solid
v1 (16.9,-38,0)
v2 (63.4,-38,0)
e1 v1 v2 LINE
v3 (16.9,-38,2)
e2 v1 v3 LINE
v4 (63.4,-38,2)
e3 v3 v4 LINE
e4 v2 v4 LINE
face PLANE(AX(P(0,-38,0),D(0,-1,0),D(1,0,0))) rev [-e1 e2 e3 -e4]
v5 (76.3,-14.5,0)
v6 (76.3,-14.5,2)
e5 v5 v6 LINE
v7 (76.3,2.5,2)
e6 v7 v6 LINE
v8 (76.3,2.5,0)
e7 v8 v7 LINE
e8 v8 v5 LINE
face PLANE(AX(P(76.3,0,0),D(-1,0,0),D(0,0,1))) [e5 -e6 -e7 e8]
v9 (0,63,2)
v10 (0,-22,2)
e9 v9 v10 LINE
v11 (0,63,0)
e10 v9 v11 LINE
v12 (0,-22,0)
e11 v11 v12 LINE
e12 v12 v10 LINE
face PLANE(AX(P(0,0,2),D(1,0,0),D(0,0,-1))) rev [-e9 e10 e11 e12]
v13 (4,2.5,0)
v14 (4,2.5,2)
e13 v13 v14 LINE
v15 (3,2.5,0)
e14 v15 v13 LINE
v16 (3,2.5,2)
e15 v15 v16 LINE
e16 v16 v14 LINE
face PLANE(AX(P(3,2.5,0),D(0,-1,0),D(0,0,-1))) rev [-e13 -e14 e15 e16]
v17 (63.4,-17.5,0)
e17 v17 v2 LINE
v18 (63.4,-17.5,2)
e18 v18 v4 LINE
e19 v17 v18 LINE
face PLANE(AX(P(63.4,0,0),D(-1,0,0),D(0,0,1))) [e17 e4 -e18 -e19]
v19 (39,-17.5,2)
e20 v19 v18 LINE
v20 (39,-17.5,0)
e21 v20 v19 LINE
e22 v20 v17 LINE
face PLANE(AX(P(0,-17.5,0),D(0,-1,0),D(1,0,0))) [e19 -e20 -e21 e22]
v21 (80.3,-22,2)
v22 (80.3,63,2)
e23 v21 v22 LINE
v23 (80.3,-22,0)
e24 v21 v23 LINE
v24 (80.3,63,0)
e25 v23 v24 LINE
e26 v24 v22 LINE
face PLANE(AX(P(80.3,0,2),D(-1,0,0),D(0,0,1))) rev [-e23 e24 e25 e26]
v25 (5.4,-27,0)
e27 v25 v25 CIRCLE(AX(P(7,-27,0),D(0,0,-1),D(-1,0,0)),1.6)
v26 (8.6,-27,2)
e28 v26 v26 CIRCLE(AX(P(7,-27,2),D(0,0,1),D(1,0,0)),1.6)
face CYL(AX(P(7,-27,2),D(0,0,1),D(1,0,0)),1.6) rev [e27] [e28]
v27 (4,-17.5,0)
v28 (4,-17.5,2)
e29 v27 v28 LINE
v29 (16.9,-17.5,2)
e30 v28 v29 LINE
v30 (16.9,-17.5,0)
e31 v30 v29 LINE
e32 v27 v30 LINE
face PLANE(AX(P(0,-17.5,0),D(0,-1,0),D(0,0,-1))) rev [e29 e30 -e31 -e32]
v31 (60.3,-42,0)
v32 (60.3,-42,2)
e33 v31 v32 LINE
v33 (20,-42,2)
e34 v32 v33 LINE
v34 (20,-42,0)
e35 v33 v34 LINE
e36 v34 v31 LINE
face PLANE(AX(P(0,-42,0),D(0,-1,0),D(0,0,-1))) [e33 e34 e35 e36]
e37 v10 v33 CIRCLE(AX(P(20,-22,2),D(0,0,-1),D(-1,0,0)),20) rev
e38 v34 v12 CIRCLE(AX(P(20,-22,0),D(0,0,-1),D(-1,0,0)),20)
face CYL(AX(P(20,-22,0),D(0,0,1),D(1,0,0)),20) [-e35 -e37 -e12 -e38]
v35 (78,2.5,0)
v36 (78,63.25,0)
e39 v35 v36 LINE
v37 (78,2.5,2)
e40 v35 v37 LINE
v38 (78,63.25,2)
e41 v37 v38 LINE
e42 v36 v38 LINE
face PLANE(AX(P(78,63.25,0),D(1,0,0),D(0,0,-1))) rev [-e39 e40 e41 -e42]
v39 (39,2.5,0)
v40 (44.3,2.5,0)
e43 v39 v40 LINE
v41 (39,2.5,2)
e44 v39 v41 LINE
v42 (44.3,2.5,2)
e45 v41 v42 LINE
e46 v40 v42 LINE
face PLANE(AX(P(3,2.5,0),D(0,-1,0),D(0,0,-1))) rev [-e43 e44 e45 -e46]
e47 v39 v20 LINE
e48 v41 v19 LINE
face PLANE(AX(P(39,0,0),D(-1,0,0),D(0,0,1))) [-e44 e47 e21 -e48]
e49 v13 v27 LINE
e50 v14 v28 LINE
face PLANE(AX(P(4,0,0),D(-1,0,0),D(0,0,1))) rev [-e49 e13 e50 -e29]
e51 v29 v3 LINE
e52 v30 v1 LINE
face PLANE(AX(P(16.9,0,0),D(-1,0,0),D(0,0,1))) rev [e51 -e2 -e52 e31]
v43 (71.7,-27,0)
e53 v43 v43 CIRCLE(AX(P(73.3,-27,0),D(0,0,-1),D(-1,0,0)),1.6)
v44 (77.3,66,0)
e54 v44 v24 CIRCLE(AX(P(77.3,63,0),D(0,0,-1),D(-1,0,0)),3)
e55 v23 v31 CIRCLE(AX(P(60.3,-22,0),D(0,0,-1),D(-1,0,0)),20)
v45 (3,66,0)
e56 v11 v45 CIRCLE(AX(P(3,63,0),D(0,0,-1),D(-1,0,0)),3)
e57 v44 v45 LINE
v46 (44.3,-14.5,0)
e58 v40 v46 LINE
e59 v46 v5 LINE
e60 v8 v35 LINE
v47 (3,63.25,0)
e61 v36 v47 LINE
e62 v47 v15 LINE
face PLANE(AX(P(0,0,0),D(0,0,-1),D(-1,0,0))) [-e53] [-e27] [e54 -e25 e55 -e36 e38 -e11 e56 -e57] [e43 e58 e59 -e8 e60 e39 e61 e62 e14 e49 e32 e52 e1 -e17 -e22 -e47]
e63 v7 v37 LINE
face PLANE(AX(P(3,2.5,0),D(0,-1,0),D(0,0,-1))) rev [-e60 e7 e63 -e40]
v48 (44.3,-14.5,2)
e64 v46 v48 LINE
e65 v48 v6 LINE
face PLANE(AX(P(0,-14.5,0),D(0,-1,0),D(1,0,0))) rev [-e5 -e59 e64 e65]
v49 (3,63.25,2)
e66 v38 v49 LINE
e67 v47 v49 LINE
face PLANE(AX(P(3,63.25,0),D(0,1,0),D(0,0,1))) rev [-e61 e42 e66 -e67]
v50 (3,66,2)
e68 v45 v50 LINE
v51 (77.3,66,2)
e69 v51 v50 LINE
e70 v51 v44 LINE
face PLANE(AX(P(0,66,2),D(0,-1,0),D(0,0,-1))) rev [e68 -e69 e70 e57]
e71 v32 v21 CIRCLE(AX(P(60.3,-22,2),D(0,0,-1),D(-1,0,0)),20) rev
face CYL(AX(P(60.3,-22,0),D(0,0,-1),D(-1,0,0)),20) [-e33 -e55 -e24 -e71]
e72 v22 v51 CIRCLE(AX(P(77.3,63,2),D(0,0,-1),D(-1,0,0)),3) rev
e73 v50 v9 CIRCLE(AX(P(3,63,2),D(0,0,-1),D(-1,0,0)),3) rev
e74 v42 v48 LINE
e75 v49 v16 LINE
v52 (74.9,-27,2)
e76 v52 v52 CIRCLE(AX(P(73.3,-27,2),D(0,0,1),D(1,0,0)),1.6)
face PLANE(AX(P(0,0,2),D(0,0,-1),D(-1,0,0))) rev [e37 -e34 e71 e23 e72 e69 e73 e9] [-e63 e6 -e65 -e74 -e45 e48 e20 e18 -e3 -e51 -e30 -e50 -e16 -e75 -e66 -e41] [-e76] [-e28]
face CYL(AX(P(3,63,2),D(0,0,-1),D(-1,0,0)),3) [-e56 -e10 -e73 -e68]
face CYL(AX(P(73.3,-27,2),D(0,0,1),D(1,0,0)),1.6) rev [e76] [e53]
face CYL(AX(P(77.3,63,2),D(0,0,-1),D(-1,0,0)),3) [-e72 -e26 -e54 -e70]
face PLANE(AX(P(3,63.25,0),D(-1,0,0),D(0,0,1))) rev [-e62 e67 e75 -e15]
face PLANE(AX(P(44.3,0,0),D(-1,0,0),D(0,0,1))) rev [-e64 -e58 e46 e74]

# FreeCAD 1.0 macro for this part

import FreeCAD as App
import Part
import Sketcher
Q = App.Units.Quantity


def edges_at(feature, points):
    """Names of the edges that pass closest to the given points."""
    edges = feature.Shape.Edges
    near = lambda p: min(range(len(edges)), key=lambda i: edges[i].distToShape(Part.Vertex(*p))[0])
    return sorted({f"Edge{near(p) + 1}" for p in points})


def add_polygon(sketch, points):
    """Adds a closed chain of lines whose ends are joined by coincident constraints."""
    first, n = sketch.GeometryCount, len(points)
    for a, b in zip(points, points[1:] + points[:1]):
        sketch.addGeometry(Part.LineSegment(App.Vector(*a, 0), App.Vector(*b, 0)), False)
    for i in range(n):
        sketch.addConstraint(Sketcher.Constraint("Coincident", first + i, 2, first + (i + 1) % n, 1))

doc = App.newDocument("Part")
body = doc.addObject("PartDesign::Body", "Body")

# Sketch on XY plane
sketch1 = doc.addObject("Sketcher::SketchObject", "Sketch")
body.addObject(sketch1)
sketch1.AttachmentSupport = (doc.XY_Plane, [""])
sketch1.MapMode = "FlatFace"
add_polygon(sketch1, [(0, 66), (0, 0), (80, 0), (80, 66)])  # lines 0-3
sketch1.addConstraint(Sketcher.Constraint("Vertical", 0))
sketch1.addConstraint(Sketcher.Constraint("Horizontal", 1))
sketch1.addConstraint(Sketcher.Constraint("Vertical", 2))
sketch1.addConstraint(Sketcher.Constraint("Horizontal", 3))
sketch1.addConstraint(Sketcher.Constraint("Coincident", 0, 2, -1, 1))
sketch1.addConstraint(Sketcher.Constraint("DistanceY", 0, 2, 0, 1, Q("66 mm")))
sketch1.addConstraint(Sketcher.Constraint("DistanceX", 1, 1, 1, 2, Q("80.3 mm")))
pad1 = doc.addObject("PartDesign::Pad", "Pad")
body.addObject(pad1)
pad1.Profile = sketch1
pad1.Length = 2

# Sketch on XY plane
sketch2 = doc.addObject("Sketcher::SketchObject", "Sketch001")
body.addObject(sketch2)
sketch2.AttachmentSupport = (doc.XY_Plane, [""])
sketch2.MapMode = "FlatFace"
sketch2.AttachmentOffset = App.Placement(App.Vector(0, 0, 2), App.Rotation())
sketch2.addGeometry(Part.Circle(App.Vector(7, 59, 0), App.Vector(0, 0, 1), 1.6), False)
sketch2.addGeometry(Part.Circle(App.Vector(73.3, 59, 0), App.Vector(0, 0, 1), 1.6), False)
sketch2.addGeometry(Part.Circle(App.Vector(73.3, 7, 0), App.Vector(0, 0, 1), 1.6), False)
sketch2.addGeometry(Part.Circle(App.Vector(7, 7, 0), App.Vector(0, 0, 1), 1.6), False)
sketch2.addConstraint(Sketcher.Constraint("Equal", 0, 1))
sketch2.addConstraint(Sketcher.Constraint("Equal", 1, 2))
sketch2.addConstraint(Sketcher.Constraint("Equal", 2, 3))
sketch2.addConstraint(Sketcher.Constraint("Horizontal", 0, 3, 1, 3))
sketch2.addConstraint(Sketcher.Constraint("Horizontal", 2, 3, 3, 3))
sketch2.addConstraint(Sketcher.Constraint("Vertical", 1, 3, 2, 3))
sketch2.addConstraint(Sketcher.Constraint("Vertical", 0, 3, 3, 3))
sketch2.addConstraint(Sketcher.Constraint("Diameter", 0, Q("3.2 mm")))
sketch2.addConstraint(Sketcher.Constraint("DistanceX", -1, 1, 0, 3, Q("7 mm")))
sketch2.addConstraint(Sketcher.Constraint("DistanceY", -1, 1, 0, 3, Q("59 mm")))
sketch2.addConstraint(Sketcher.Constraint("DistanceY", -1, 1, 2, 3, Q("7 mm")))
sketch2.addConstraint(Sketcher.Constraint("DistanceX", -1, 1, 1, 3, Q("73.3 mm")))
doc.recompute()
hole = doc.addObject("PartDesign::Hole", "Hole")
body.addObject(hole)
hole.Profile = sketch2
hole.ThreadType = "None"
hole.Diameter = 3.2
hole.DepthType = "ThroughAll"
doc.recompute()

fillet = doc.addObject("PartDesign::Fillet", "Fillet")
body.addObject(fillet)
fillet.Base = (hole, edges_at(hole, [(0, 66, 1), (80.3, 66, 1)]))
fillet.Radius = 3

# Sketch on XZ plane
sketch3 = doc.addObject("Sketcher::SketchObject", "Sketch002")
body.addObject(sketch3)
sketch3.AttachmentSupport = (doc.XZ_Plane, [""])
sketch3.MapMode = "FlatFace"
add_polygon(sketch3, [(0, 2), (0, 0), (80.3, 0), (80.3, 2)])  # lines 0-3
sketch3.addConstraint(Sketcher.Constraint("Vertical", 0))
sketch3.addConstraint(Sketcher.Constraint("Horizontal", 1))
sketch3.addConstraint(Sketcher.Constraint("Vertical", 2))
sketch3.addConstraint(Sketcher.Constraint("Horizontal", 3))
sketch3.addConstraint(Sketcher.Constraint("Coincident", 0, 2, -1, 1))
sketch3.addConstraint(Sketcher.Constraint("DistanceY", 0, 2, 0, 1, Q("2 mm")))
sketch3.addConstraint(Sketcher.Constraint("DistanceX", 1, 1, 1, 2, Q("80.3 mm")))
pad2 = doc.addObject("PartDesign::Pad", "Pad001")
body.addObject(pad2)
pad2.Profile = sketch3
pad2.Length = 42
doc.recompute()

fillet2 = doc.addObject("PartDesign::Fillet", "Fillet001")
body.addObject(fillet2)
fillet2.Base = (pad2, edges_at(pad2, [(0, -42, 1), (80.3, -42, 1)]))
fillet2.Radius = 20

# Sketch on XY plane
sketch4 = doc.addObject("Sketcher::SketchObject", "Sketch003")
body.addObject(sketch4)
sketch4.AttachmentSupport = (doc.XY_Plane, [""])
sketch4.MapMode = "FlatFace"
sketch4.AttachmentOffset = App.Placement(App.Vector(0, 0, 2), App.Rotation())
sketch4.addGeometry(Part.Circle(App.Vector(7, -27, 0), App.Vector(0, 0, 1), 1.6), False)
sketch4.addGeometry(Part.Circle(App.Vector(73.3, -27, 0), App.Vector(0, 0, 1), 1.6), False)
sketch4.addConstraint(Sketcher.Constraint("Equal", 0, 1))
sketch4.addConstraint(Sketcher.Constraint("Horizontal", 0, 3, 1, 3))
sketch4.addConstraint(Sketcher.Constraint("Diameter", 0, Q("3.2 mm")))
sketch4.addConstraint(Sketcher.Constraint("DistanceX", -1, 1, 0, 3, Q("7 mm")))
sketch4.addConstraint(Sketcher.Constraint("DistanceY", 0, 3, -1, 1, Q("27 mm")))
sketch4.addConstraint(Sketcher.Constraint("DistanceX", -1, 1, 1, 3, Q("73.3 mm")))
doc.recompute()
hole2 = doc.addObject("PartDesign::Hole", "Hole001")
body.addObject(hole2)
hole2.Profile = sketch4
hole2.ThreadType = "None"
hole2.Diameter = 3.2
hole2.DepthType = "Dimension"
hole2.Depth = 60
hole2.DrillPoint = "Angled"
hole2.DrillPointAngle = 118

# Sketch on XY plane
sketch5 = doc.addObject("Sketcher::SketchObject", "Sketch004")
body.addObject(sketch5)
sketch5.AttachmentSupport = (doc.XY_Plane, [""])
sketch5.MapMode = "FlatFace"
sketch5.AttachmentOffset = App.Placement(App.Vector(0, 0, 2), App.Rotation())
add_polygon(sketch5, [(3, 63), (3, 3), (78, 3), (78, 63)])  # lines 0-3
sketch5.addConstraint(Sketcher.Constraint("Vertical", 0))
sketch5.addConstraint(Sketcher.Constraint("Horizontal", 1))
sketch5.addConstraint(Sketcher.Constraint("Vertical", 2))
sketch5.addConstraint(Sketcher.Constraint("Horizontal", 3))
sketch5.addConstraint(Sketcher.Constraint("DistanceX", 1, 1, 1, 2, Q("75 mm")))
sketch5.addConstraint(Sketcher.Constraint("DistanceY", 0, 2, 0, 1, Q("60.5 mm")))
sketch5.addConstraint(Sketcher.Constraint("DistanceX", -1, 1, 0, 2, Q("3 mm")))
sketch5.addConstraint(Sketcher.Constraint("DistanceY", -1, 1, 0, 2, Q("2.75 mm")))
pocket1 = doc.addObject("PartDesign::Pocket", "Pocket")
body.addObject(pocket1)
pocket1.Profile = sketch5
pocket1.Type = "ThroughAll"

# Sketch on XY plane
sketch6 = doc.addObject("Sketcher::SketchObject", "Sketch005")
body.addObject(sketch6)
sketch6.AttachmentSupport = (doc.XY_Plane, [""])
sketch6.MapMode = "FlatFace"
sketch6.AttachmentOffset = App.Placement(App.Vector(0, 0, 2), App.Rotation())
add_polygon(sketch6, [(4, 2), (4, -18), (17, -18), (17, -38), (63, -38), (63, -18), (39, -18), (39, 2)])  # lines 0-7
add_polygon(sketch6, [(44, 2), (44, -14), (76, -14), (76, 2)])  # lines 8-11
sketch6.addConstraint(Sketcher.Constraint("Vertical", 0))
sketch6.addConstraint(Sketcher.Constraint("Horizontal", 1))
sketch6.addConstraint(Sketcher.Constraint("Vertical", 2))
sketch6.addConstraint(Sketcher.Constraint("Horizontal", 3))
sketch6.addConstraint(Sketcher.Constraint("Vertical", 4))
sketch6.addConstraint(Sketcher.Constraint("Horizontal", 5))
sketch6.addConstraint(Sketcher.Constraint("Vertical", 6))
sketch6.addConstraint(Sketcher.Constraint("Horizontal", 7))
sketch6.addConstraint(Sketcher.Constraint("Vertical", 8))
sketch6.addConstraint(Sketcher.Constraint("Horizontal", 9))
sketch6.addConstraint(Sketcher.Constraint("Vertical", 10))
sketch6.addConstraint(Sketcher.Constraint("Horizontal", 11))
sketch6.addConstraint(Sketcher.Constraint("Horizontal", 1, 2, 4, 2))
sketch6.addConstraint(Sketcher.Constraint("Horizontal", 7, 2, 10, 2))
sketch6.addConstraint(Sketcher.Constraint("DistanceX", 7, 2, 7, 1, Q("35 mm")))
sketch6.addConstraint(Sketcher.Constraint("DistanceX", 9, 1, 9, 2, Q("32 mm")))
sketch6.addConstraint(Sketcher.Constraint("DistanceY", 0, 2, 0, 1, Q("20 mm")))
sketch6.addConstraint(Sketcher.Constraint("DistanceY", 8, 2, 8, 1, Q("17 mm")))
sketch6.addConstraint(Sketcher.Constraint("DistanceX", 1, 1, 1, 2, Q("12.9 mm")))
sketch6.addConstraint(Sketcher.Constraint("DistanceX", 3, 1, 3, 2, Q("46.5 mm")))
sketch6.addConstraint(Sketcher.Constraint("DistanceY", 2, 2, 2, 1, Q("20.5 mm")))
sketch6.addConstraint(Sketcher.Constraint("DistanceX", -1, 1, 0, 2, Q("4 mm")))
sketch6.addConstraint(Sketcher.Constraint("DistanceY", 2, 2, -1, 1, Q("38 mm")))
sketch6.addConstraint(Sketcher.Constraint("DistanceX", -1, 1, 8, 2, Q("44.3 mm")))
pocket2 = doc.addObject("PartDesign::Pocket", "Pocket001")
body.addObject(pocket2)
pocket2.Profile = sketch6
pocket2.Type = "ThroughAll"

# Sketch on XY plane
sketch7 = doc.addObject("Sketcher::SketchObject", "Sketch006")
body.addObject(sketch7)
sketch7.AttachmentSupport = (doc.XY_Plane, [""])
sketch7.MapMode = "FlatFace"
sketch7.AttachmentOffset = App.Placement(App.Vector(0, 0, 2), App.Rotation())
add_polygon(sketch7, [(3, 2.75), (3, 2.5), (78, 2.5), (78, 2.75)])  # lines 0-3
sketch7.addConstraint(Sketcher.Constraint("Vertical", 0))
sketch7.addConstraint(Sketcher.Constraint("Horizontal", 1))
sketch7.addConstraint(Sketcher.Constraint("Vertical", 2))
sketch7.addConstraint(Sketcher.Constraint("Horizontal", 3))
sketch7.addConstraint(Sketcher.Constraint("DistanceX", 1, 1, 1, 2, Q("75 mm")))
sketch7.addConstraint(Sketcher.Constraint("DistanceX", -1, 1, 0, 2, Q("3 mm")))
sketch7.addConstraint(Sketcher.Constraint("DistanceY", 0, 2, 0, 1, Q("0.25 mm")))
sketch7.addConstraint(Sketcher.Constraint("DistanceY", -1, 1, 0, 2, Q("2.5 mm")))
pocket3 = doc.addObject("PartDesign::Pocket", "Pocket002")
body.addObject(pocket3)
pocket3.Profile = sketch7
pocket3.Type = "ThroughAll"

doc.recompute()
